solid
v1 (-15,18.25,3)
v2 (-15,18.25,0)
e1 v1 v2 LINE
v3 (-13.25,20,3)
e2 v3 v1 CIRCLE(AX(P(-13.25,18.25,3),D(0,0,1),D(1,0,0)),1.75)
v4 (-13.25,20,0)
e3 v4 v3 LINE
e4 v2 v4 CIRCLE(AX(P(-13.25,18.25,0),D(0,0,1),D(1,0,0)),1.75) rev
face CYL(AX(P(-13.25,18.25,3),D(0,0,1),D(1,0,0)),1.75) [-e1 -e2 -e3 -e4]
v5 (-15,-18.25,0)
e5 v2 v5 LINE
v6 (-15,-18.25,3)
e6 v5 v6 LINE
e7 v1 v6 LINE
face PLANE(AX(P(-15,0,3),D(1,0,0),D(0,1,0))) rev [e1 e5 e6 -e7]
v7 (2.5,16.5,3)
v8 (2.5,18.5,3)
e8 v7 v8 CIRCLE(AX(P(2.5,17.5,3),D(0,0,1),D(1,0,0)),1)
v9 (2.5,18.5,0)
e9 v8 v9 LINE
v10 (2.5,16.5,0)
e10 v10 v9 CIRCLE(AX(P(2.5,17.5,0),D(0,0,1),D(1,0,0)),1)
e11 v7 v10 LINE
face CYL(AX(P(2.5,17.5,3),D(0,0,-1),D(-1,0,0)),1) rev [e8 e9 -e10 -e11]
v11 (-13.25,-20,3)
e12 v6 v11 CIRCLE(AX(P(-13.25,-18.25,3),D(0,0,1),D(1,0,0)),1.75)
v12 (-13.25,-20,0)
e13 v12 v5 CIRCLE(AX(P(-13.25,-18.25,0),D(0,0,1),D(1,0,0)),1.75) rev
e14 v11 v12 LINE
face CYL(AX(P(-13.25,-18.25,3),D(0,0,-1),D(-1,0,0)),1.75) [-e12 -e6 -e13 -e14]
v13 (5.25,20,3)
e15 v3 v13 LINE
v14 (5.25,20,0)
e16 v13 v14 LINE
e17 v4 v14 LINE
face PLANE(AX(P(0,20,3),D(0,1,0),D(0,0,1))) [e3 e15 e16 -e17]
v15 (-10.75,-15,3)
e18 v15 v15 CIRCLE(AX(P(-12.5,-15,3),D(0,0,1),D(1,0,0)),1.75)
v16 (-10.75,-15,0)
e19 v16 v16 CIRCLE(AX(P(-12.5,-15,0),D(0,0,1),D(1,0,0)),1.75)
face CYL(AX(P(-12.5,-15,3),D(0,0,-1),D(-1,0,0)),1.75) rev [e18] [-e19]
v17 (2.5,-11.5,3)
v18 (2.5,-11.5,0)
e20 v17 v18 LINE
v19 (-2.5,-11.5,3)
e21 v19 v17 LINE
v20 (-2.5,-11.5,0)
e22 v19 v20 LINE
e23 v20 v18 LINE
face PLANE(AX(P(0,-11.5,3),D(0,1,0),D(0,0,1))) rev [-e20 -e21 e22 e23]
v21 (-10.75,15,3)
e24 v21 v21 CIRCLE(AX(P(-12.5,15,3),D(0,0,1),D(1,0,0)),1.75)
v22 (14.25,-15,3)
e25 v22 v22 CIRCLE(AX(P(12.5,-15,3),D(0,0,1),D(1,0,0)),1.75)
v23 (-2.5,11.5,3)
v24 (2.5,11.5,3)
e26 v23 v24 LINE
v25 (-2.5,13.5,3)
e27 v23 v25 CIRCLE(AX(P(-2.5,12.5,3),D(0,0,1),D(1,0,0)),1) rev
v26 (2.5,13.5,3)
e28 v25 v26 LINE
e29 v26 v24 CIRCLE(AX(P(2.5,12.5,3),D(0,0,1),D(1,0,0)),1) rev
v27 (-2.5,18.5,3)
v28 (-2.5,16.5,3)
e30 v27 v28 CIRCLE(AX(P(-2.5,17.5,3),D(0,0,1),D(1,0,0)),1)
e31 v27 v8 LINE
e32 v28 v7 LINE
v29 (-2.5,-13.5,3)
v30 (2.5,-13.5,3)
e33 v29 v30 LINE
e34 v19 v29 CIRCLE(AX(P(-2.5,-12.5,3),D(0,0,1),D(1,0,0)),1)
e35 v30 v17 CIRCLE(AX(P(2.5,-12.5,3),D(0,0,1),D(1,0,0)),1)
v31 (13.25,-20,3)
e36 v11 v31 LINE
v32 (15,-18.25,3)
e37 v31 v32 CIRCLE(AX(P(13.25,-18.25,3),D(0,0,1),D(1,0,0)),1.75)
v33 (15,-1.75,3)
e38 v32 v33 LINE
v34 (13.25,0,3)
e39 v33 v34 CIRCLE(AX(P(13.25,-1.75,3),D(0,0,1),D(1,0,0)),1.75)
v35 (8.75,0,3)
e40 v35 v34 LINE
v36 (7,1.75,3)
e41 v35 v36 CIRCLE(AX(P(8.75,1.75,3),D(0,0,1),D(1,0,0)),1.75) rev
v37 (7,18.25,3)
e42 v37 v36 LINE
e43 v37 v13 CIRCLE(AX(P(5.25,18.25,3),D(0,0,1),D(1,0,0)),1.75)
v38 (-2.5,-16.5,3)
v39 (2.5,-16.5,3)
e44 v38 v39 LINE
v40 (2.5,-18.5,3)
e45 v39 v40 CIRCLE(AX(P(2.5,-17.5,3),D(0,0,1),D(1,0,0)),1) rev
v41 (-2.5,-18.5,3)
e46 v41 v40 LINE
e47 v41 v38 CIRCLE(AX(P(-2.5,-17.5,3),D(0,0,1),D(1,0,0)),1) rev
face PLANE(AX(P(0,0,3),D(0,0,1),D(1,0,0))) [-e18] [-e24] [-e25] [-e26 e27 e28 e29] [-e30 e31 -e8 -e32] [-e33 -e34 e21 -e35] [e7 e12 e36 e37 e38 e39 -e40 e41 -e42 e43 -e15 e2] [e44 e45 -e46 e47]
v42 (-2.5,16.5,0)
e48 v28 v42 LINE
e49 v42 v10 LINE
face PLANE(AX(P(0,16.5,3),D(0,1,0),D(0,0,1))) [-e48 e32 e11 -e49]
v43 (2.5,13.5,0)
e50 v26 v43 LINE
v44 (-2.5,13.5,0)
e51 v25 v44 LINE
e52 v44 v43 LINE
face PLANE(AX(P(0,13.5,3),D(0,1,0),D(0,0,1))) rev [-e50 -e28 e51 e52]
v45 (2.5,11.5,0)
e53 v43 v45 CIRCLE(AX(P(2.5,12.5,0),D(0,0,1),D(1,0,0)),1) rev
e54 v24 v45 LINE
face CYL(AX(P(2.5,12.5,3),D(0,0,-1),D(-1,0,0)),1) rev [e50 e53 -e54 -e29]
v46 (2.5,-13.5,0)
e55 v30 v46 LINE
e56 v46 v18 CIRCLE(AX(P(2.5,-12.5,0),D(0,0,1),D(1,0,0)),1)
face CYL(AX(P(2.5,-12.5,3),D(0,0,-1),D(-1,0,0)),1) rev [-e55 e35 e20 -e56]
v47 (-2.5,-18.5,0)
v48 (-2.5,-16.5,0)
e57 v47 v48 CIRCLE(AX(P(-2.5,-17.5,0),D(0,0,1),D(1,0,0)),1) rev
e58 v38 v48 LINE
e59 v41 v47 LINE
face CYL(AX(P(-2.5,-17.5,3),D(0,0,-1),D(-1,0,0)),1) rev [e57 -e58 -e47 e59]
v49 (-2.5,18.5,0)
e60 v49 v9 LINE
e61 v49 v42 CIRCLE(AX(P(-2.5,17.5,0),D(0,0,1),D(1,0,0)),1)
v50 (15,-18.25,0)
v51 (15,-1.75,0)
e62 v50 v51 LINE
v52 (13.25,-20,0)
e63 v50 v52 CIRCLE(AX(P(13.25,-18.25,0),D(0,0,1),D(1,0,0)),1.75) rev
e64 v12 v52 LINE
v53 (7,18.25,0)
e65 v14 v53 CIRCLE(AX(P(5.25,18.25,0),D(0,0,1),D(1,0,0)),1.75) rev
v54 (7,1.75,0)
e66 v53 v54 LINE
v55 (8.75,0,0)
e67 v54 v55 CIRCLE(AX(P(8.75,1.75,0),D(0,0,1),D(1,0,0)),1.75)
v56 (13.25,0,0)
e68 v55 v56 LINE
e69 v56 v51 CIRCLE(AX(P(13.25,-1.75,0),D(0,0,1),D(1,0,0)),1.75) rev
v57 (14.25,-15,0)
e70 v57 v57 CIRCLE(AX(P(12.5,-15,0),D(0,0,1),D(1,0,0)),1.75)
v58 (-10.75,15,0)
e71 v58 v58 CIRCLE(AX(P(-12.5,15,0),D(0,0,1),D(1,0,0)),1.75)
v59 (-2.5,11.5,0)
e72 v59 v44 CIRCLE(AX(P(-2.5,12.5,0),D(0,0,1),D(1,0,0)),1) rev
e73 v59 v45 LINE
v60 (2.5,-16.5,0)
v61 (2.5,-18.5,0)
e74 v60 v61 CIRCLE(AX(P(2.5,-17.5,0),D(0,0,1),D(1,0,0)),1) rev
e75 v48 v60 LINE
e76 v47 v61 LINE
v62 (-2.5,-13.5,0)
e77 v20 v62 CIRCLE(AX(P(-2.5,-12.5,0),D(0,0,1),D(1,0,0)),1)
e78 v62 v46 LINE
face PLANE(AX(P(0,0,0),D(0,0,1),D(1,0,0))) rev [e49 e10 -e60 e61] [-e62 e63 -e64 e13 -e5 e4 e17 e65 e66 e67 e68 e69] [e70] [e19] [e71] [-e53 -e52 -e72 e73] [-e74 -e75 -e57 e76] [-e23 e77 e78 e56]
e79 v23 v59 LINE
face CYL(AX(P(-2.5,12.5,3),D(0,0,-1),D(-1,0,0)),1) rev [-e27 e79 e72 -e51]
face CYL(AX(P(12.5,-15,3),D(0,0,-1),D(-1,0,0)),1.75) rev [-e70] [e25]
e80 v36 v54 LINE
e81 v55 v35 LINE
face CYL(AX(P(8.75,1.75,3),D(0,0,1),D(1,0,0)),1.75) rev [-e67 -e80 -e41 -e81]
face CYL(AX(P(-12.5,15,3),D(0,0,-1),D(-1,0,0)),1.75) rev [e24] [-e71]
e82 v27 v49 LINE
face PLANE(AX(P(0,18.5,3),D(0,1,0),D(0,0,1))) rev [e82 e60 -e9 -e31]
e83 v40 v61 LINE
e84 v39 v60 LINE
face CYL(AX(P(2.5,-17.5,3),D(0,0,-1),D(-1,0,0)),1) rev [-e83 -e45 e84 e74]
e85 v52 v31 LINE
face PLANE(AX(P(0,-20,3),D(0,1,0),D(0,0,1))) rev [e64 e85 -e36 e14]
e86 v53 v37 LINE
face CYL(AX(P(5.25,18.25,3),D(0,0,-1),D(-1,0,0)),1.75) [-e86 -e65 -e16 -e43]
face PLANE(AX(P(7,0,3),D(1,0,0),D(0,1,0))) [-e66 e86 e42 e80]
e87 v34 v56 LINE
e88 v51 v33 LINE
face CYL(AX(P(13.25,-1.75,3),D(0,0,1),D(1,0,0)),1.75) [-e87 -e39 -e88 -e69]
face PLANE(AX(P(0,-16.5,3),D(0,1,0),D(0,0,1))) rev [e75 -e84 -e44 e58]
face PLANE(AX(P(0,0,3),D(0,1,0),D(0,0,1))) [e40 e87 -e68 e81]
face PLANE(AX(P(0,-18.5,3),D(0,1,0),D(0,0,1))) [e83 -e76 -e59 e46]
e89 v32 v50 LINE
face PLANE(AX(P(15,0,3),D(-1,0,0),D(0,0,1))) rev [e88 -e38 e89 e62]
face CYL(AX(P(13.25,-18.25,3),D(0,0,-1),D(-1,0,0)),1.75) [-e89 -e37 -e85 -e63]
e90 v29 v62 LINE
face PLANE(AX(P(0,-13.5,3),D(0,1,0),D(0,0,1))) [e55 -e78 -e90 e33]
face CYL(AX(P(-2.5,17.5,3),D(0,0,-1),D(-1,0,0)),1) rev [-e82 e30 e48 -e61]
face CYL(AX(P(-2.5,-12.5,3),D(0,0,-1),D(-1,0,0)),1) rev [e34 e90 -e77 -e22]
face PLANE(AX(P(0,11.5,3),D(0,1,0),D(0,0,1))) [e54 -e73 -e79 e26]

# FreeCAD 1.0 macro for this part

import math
import FreeCAD as App
import Part
import Sketcher
from FreeCAD import Vector
Q = App.Units.Quantity


def edges_at(feature, points):
    """Names of the edges that pass closest to the given points."""
    edges = feature.Shape.Edges
    near = lambda p: min(range(len(edges)), key=lambda i: edges[i].distToShape(Part.Vertex(*p))[0])
    return sorted({f"Edge{near(p) + 1}" for p in points})

doc = App.newDocument("Part")
body = doc.addObject("PartDesign::Body", "Body")

sketch1 = body.newObject("Sketcher::SketchObject", "Sketch")
sketch1.AttachmentSupport = (doc.getObject("XY_Plane"), [""])
sketch1.MapMode = "FlatFace"
sketch1.addGeometry([
    Part.LineSegment(Vector(-15, -20, 0), Vector(15, -20, 0)),
    Part.LineSegment(Vector(15, -20, 0), Vector(15, 0, 0)),
    Part.LineSegment(Vector(15, 0, 0), Vector(7, 0, 0)),
    Part.LineSegment(Vector(7, 0, 0), Vector(7, 20, 0)),
    Part.LineSegment(Vector(7, 20, 0), Vector(-15, 20, 0)),
    Part.LineSegment(Vector(-15, 20, 0), Vector(-15, -20, 0)),
    Part.Circle(Vector(-12.5, -15, 0), Vector(0, 0, 1), 1.8),
    Part.ArcOfCircle(Part.Circle(Vector(-2.5, -17.5, 0), Vector(0, 0, 1), 1), math.radians(90), math.radians(270)),
    Part.LineSegment(Vector(-2.5, -16.5, 0), Vector(2.5, -16.5, 0)),
    Part.ArcOfCircle(Part.Circle(Vector(2.5, -17.5, 0), Vector(0, 0, 1), 1), math.radians(-90), math.radians(90)),
    Part.LineSegment(Vector(2.5, -18.5, 0), Vector(-2.5, -18.5, 0)),
    Part.ArcOfCircle(Part.Circle(Vector(2.5, -12.5, 0), Vector(0, 0, 1), 1), math.radians(-90), math.radians(90)),
    Part.LineSegment(Vector(2.5, -13.5, 0), Vector(-2.5, -13.5, 0)),
    Part.ArcOfCircle(Part.Circle(Vector(-2.5, -12.5, 0), Vector(0, 0, 1), 1), math.radians(90), math.radians(270)),
    Part.LineSegment(Vector(-2.5, -11.5, 0), Vector(2.5, -11.5, 0)),
    Part.Circle(Vector(12.5, -15, 0), Vector(0, 0, 1), 1.8),
    Part.Circle(Vector(-12.5, 15, 0), Vector(0, 0, 1), 1.8),
    Part.ArcOfCircle(Part.Circle(Vector(-2.5, 12.5, 0), Vector(0, 0, 1), 1), math.radians(90), math.radians(270)),
    Part.LineSegment(Vector(-2.5, 13.5, 0), Vector(2.5, 13.5, 0)),
    Part.ArcOfCircle(Part.Circle(Vector(2.5, 12.5, 0), Vector(0, 0, 1), 1), math.radians(-90), math.radians(90)),
    Part.LineSegment(Vector(2.5, 11.5, 0), Vector(-2.5, 11.5, 0)),
    Part.ArcOfCircle(Part.Circle(Vector(2.5, 17.5, 0), Vector(0, 0, 1), 1), math.radians(-90), math.radians(90)),
    Part.LineSegment(Vector(2.5, 16.5, 0), Vector(-2.5, 16.5, 0)),
    Part.ArcOfCircle(Part.Circle(Vector(-2.5, 17.5, 0), Vector(0, 0, 1), 1), math.radians(90), math.radians(270)),
    Part.LineSegment(Vector(-2.5, 18.5, 0), Vector(2.5, 18.5, 0)),
], False)
sketch1.addConstraint([
    Sketcher.Constraint("Coincident", 0, 2, 1, 1),
    Sketcher.Constraint("Coincident", 1, 2, 2, 1),
    Sketcher.Constraint("Coincident", 2, 2, 3, 1),
    Sketcher.Constraint("Coincident", 3, 2, 4, 1),
    Sketcher.Constraint("Coincident", 4, 2, 5, 1),
    Sketcher.Constraint("Coincident", 5, 2, 0, 1),
    Sketcher.Constraint("Tangent", 7, 1, 8, 1),
    Sketcher.Constraint("Tangent", 8, 2, 9, 2),
    Sketcher.Constraint("Tangent", 9, 1, 10, 1),
    Sketcher.Constraint("Tangent", 10, 2, 7, 2),
    Sketcher.Constraint("Tangent", 11, 1, 12, 1),
    Sketcher.Constraint("Tangent", 12, 2, 13, 2),
    Sketcher.Constraint("Tangent", 13, 1, 14, 1),
    Sketcher.Constraint("Tangent", 14, 2, 11, 2),
    Sketcher.Constraint("Tangent", 17, 1, 18, 1),
    Sketcher.Constraint("Tangent", 18, 2, 19, 2),
    Sketcher.Constraint("Tangent", 19, 1, 20, 1),
    Sketcher.Constraint("Tangent", 20, 2, 17, 2),
    Sketcher.Constraint("Tangent", 21, 1, 22, 1),
    Sketcher.Constraint("Tangent", 22, 2, 23, 2),
    Sketcher.Constraint("Tangent", 23, 1, 24, 1),
    Sketcher.Constraint("Tangent", 24, 2, 21, 2),
    Sketcher.Constraint("Horizontal", 0),
    Sketcher.Constraint("Vertical", 1),
    Sketcher.Constraint("Horizontal", 2),
    Sketcher.Constraint("Vertical", 3),
    Sketcher.Constraint("Horizontal", 4),
    Sketcher.Constraint("Vertical", 5),
    Sketcher.Constraint("Horizontal", 8),
    Sketcher.Constraint("Horizontal", 10),
    Sketcher.Constraint("Horizontal", 12),
    Sketcher.Constraint("Horizontal", 14),
    Sketcher.Constraint("Horizontal", 18),
    Sketcher.Constraint("Horizontal", 20),
    Sketcher.Constraint("Horizontal", 22),
    Sketcher.Constraint("Horizontal", 24),
    Sketcher.Constraint("Equal", 9, 11),
    Sketcher.Constraint("Equal", 6, 15),
    Sketcher.Constraint("Equal", 15, 16),
    Sketcher.Constraint("Equal", 13, 17),
    Sketcher.Constraint("Equal", 19, 21),
    Sketcher.Constraint("Symmetric", 15, 3, 16, 3, -1, 1),
    Sketcher.Constraint("Symmetric", 11, 3, 17, 3, -1, 1),
    Sketcher.Constraint("Symmetric", 7, 3, 21, 3, -1, 1),
    Sketcher.Constraint("Symmetric", 0, 2, 4, 2, -1, 1),
    Sketcher.Constraint("Symmetric", 6, 3, 15, 3, -2),
    Sketcher.Constraint("PointOnObject", 1, 2, -1),
    Sketcher.Constraint("Vertical", 9, 3, 11, 3),
    Sketcher.Constraint("Vertical", 7, 3, 13, 3),
    Sketcher.Constraint("Vertical", 13, 3, 17, 3),
    Sketcher.Constraint("Vertical", 11, 3, 19, 3),
    Sketcher.Constraint("Vertical", 17, 3, 23, 3),
    Sketcher.Constraint("Radius", 7, Q("1 mm")),
    Sketcher.Constraint("Diameter", 6, Q("3.5 mm")),
    Sketcher.Constraint("DistanceX", 0, 1, 0, 2, Q("30 mm")),
    Sketcher.Constraint("DistanceX", 2, 2, 2, 1, Q("8 mm")),
    Sketcher.Constraint("DistanceX", 8, 1, 8, 2, Q("5 mm")),
    Sketcher.Constraint("DistanceY", 1, 1, 1, 2, Q("20 mm")),
    Sketcher.Constraint("DistanceY", 6, 3, -1, 1, Q("15 mm")),
    Sketcher.Constraint("DistanceX", 6, 3, 7, 3, Q("10 mm")),
    Sketcher.Constraint("DistanceY", 9, 3, 11, 3, Q("5 mm")),
    Sketcher.Constraint("DistanceY", 13, 3, 17, 3, Q("25 mm")),
])
pad1 = body.newObject("PartDesign::Pad", "Pad")
pad1.Profile = sketch1
pad1.Length = 3
doc.recompute()

fillet = body.newObject("PartDesign::Fillet", "Fillet")
fillet.Base = (pad1, edges_at(pad1, [
    (-15, -20, 1.5),
    (-15, 20, 1.5),
    (7, 20, 1.5),
    (7, 0, 1.5),
    (15, 0, 1.5),
    (15, -20, 1.5),
]))
fillet.Radius = 1.75

doc.recompute()
